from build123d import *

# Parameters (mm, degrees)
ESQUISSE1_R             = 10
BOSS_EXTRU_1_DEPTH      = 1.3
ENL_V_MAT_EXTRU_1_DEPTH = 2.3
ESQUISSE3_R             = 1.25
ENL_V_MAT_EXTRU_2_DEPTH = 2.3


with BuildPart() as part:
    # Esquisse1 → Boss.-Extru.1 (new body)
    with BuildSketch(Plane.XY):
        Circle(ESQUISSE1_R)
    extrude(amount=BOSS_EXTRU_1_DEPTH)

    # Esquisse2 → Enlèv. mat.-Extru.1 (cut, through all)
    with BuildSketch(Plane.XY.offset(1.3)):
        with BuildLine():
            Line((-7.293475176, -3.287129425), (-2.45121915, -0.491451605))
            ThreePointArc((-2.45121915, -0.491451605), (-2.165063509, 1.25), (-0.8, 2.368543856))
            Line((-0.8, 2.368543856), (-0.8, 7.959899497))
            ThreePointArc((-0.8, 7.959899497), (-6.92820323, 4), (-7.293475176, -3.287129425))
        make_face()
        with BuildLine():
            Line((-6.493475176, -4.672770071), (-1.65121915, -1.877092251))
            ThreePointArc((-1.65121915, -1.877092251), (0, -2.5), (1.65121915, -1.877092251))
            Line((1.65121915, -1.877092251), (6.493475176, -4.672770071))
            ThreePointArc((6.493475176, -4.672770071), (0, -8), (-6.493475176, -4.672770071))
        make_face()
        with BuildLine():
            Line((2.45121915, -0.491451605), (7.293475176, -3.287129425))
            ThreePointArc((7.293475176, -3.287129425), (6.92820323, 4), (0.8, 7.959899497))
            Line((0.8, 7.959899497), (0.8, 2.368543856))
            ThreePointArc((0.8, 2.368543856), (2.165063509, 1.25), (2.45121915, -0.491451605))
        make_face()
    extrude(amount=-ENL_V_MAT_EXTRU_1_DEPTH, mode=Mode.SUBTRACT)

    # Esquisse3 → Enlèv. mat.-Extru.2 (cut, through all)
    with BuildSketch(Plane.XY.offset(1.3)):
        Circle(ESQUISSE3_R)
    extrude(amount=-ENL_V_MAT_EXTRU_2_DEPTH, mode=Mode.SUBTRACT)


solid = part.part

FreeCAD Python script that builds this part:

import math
import FreeCAD as App
import Part
import Sketcher

V = App.Vector
Q = App.Units.Quantity

doc = App.newDocument("Part")
body = doc.addObject("PartDesign::Body", "Body")

# Sketch on XY plane
sketch1 = body.newObject("Sketcher::SketchObject", "Sketch")
sketch1.AttachmentSupport = (doc.getObject("XY_Plane"), [""])
sketch1.MapMode = "FlatFace"
sketch1.addGeometry(Part.Circle(V(0, 0, 0), V(0, 0, 1), 10), False)
sketch1.addConstraint(Sketcher.Constraint("Coincident", 0, 3, -1, 1))
sketch1.addConstraint(Sketcher.Constraint("Diameter", 0, Q("20 mm")))
pad1 = body.newObject("PartDesign::Pad", "Pad")
pad1.Profile = sketch1
pad1.Length = 1.3

# Sketch on XY plane
sketch2 = body.newObject("Sketcher::SketchObject", "Sketch001")
sketch2.AttachmentSupport = (doc.getObject("XY_Plane"), [""])
sketch2.MapMode = "FlatFace"
sketch2.AttachmentOffset = App.Placement(V(0, 0, 1.3), App.Rotation())
sketch2.addGeometry(Part.LineSegment(V(-7.293475, -3.287129, 0), V(-2.451219, -0.491452, 0)), False)
sketch2.addGeometry(Part.ArcOfCircle(Part.Circle(V(0, 0, 0), V(0, 0, 1), 2.5), math.radians(108.662925), math.radians(191.337075)), False)
sketch2.addGeometry(Part.LineSegment(V(-0.8, 2.368544, 0), V(-0.8, 7.959899, 0)), False)
sketch2.addGeometry(Part.ArcOfCircle(Part.Circle(V(0, 0, 0), V(0, 0, 1), 8), math.radians(95.73917), math.radians(204.26083)), False)
sketch2.addGeometry(Part.LineSegment(V(-1.651219, -1.877092, 0), V(-6.493475, -4.67277, 0)), False)
sketch2.addGeometry(Part.ArcOfCircle(Part.Circle(V(0, 0, 0), V(0, 0, 1), 8), math.radians(-144.26083), math.radians(-35.73917)), False)
sketch2.addGeometry(Part.LineSegment(V(6.493475, -4.67277, 0), V(1.651219, -1.877092, 0)), False)
sketch2.addGeometry(Part.ArcOfCircle(Part.Circle(V(0, 0, 0), V(0, 0, 1), 2.5), math.radians(-131.337075), math.radians(-48.662925)), False)
sketch2.addGeometry(Part.LineSegment(V(2.451219, -0.491452, 0), V(7.293475, -3.287129, 0)), False)
sketch2.addGeometry(Part.ArcOfCircle(Part.Circle(V(0, 0, 0), V(0, 0, 1), 8), math.radians(-24.26083), math.radians(84.26083)), False)
sketch2.addGeometry(Part.LineSegment(V(0.8, 7.959899, 0), V(0.8, 2.368544, 0)), False)
sketch2.addGeometry(Part.ArcOfCircle(Part.Circle(V(0, 0, 0), V(0, 0, 1), 2.5), math.radians(-11.337075), math.radians(71.337075)), False)
sketch2.addConstraint(Sketcher.Constraint("Coincident", 0, 2, 1, 2))
sketch2.addConstraint(Sketcher.Constraint("Coincident", 1, 1, 2, 1))
sketch2.addConstraint(Sketcher.Constraint("Coincident", 2, 2, 3, 1))
sketch2.addConstraint(Sketcher.Constraint("Coincident", 3, 2, 0, 1))
sketch2.addConstraint(Sketcher.Constraint("Coincident", 4, 2, 5, 1))
sketch2.addConstraint(Sketcher.Constraint("Coincident", 5, 2, 6, 1))
sketch2.addConstraint(Sketcher.Constraint("Coincident", 6, 2, 7, 2))
sketch2.addConstraint(Sketcher.Constraint("Coincident", 7, 1, 4, 1))
sketch2.addConstraint(Sketcher.Constraint("Coincident", 8, 2, 9, 1))
sketch2.addConstraint(Sketcher.Constraint("Coincident", 9, 2, 10, 1))
sketch2.addConstraint(Sketcher.Constraint("Coincident", 10, 2, 11, 2))
sketch2.addConstraint(Sketcher.Constraint("Coincident", 11, 1, 8, 1))
sketch2.addConstraint(Sketcher.Constraint("Vertical", 2))
sketch2.addConstraint(Sketcher.Constraint("Vertical", 10))
sketch2.addConstraint(Sketcher.Constraint("Coincident", 1, 3, -1, 1))
sketch2.addConstraint(Sketcher.Constraint("Coincident", 3, 3, -1, 1))
sketch2.addConstraint(Sketcher.Constraint("Coincident", 5, 3, -1, 1))
sketch2.addConstraint(Sketcher.Constraint("Coincident", 7, 3, -1, 1))
sketch2.addConstraint(Sketcher.Constraint("Coincident", 9, 3, -1, 1))
sketch2.addConstraint(Sketcher.Constraint("Coincident", 11, 3, -1, 1))
sketch2.addConstraint(Sketcher.Constraint("Equal", 3, 5))
sketch2.addConstraint(Sketcher.Constraint("Equal", 1, 7))
sketch2.addConstraint(Sketcher.Constraint("Equal", 5, 9))
sketch2.addConstraint(Sketcher.Constraint("Equal", 7, 11))
sketch2.addConstraint(Sketcher.Constraint("Parallel", 0, 4))
sketch2.addConstraint(Sketcher.Constraint("Parallel", 6, 8))
sketch2.addConstraint(Sketcher.Constraint("Horizontal", 4, 2, 5, 2))
sketch2.addConstraint(Sketcher.Constraint("Horizontal", 6, 2, 7, 1))
sketch2.addConstraint(Sketcher.Constraint("Horizontal", 3, 2, 8, 2))
sketch2.addConstraint(Sketcher.Constraint("Horizontal", 2, 2, 9, 2))
sketch2.addConstraint(Sketcher.Constraint("Equal", 0, 4))
sketch2.addConstraint(Sketcher.Constraint("Radius", 3, Q("8 mm")))
sketch2.addConstraint(Sketcher.Constraint("Radius", 1, Q("2.5 mm")))
sketch2.addConstraint(Sketcher.Constraint("Angle", 0, Q("30 deg")))
sketch2.addConstraint(Sketcher.Constraint("DistanceX", 1, 1, -1, 1, Q("0.8 mm")))
sketch2.addConstraint(Sketcher.Constraint("DistanceX", 3, 2, 4, 2, Q("0.8 mm")))
pocket1 = body.newObject("PartDesign::Pocket", "Pocket")
pocket1.Profile = sketch2
pocket1.Type = "ThroughAll"

# Sketch on XY plane
sketch3 = body.newObject("Sketcher::SketchObject", "Sketch002")
sketch3.AttachmentSupport = (doc.getObject("XY_Plane"), [""])
sketch3.MapMode = "FlatFace"
sketch3.AttachmentOffset = App.Placement(V(0, 0, 1.3), App.Rotation())
sketch3.addGeometry(Part.Circle(V(0, 0, 0), V(0, 0, 1), 1.25), False)
sketch3.addConstraint(Sketcher.Constraint("Coincident", 0, 3, -1, 1))
sketch3.addConstraint(Sketcher.Constraint("Diameter", 0, Q("2.5 mm")))
pocket2 = body.newObject("PartDesign::Pocket", "Pocket001")
pocket2.Profile = sketch3
pocket2.Type = "ThroughAll"

doc.recompute()
